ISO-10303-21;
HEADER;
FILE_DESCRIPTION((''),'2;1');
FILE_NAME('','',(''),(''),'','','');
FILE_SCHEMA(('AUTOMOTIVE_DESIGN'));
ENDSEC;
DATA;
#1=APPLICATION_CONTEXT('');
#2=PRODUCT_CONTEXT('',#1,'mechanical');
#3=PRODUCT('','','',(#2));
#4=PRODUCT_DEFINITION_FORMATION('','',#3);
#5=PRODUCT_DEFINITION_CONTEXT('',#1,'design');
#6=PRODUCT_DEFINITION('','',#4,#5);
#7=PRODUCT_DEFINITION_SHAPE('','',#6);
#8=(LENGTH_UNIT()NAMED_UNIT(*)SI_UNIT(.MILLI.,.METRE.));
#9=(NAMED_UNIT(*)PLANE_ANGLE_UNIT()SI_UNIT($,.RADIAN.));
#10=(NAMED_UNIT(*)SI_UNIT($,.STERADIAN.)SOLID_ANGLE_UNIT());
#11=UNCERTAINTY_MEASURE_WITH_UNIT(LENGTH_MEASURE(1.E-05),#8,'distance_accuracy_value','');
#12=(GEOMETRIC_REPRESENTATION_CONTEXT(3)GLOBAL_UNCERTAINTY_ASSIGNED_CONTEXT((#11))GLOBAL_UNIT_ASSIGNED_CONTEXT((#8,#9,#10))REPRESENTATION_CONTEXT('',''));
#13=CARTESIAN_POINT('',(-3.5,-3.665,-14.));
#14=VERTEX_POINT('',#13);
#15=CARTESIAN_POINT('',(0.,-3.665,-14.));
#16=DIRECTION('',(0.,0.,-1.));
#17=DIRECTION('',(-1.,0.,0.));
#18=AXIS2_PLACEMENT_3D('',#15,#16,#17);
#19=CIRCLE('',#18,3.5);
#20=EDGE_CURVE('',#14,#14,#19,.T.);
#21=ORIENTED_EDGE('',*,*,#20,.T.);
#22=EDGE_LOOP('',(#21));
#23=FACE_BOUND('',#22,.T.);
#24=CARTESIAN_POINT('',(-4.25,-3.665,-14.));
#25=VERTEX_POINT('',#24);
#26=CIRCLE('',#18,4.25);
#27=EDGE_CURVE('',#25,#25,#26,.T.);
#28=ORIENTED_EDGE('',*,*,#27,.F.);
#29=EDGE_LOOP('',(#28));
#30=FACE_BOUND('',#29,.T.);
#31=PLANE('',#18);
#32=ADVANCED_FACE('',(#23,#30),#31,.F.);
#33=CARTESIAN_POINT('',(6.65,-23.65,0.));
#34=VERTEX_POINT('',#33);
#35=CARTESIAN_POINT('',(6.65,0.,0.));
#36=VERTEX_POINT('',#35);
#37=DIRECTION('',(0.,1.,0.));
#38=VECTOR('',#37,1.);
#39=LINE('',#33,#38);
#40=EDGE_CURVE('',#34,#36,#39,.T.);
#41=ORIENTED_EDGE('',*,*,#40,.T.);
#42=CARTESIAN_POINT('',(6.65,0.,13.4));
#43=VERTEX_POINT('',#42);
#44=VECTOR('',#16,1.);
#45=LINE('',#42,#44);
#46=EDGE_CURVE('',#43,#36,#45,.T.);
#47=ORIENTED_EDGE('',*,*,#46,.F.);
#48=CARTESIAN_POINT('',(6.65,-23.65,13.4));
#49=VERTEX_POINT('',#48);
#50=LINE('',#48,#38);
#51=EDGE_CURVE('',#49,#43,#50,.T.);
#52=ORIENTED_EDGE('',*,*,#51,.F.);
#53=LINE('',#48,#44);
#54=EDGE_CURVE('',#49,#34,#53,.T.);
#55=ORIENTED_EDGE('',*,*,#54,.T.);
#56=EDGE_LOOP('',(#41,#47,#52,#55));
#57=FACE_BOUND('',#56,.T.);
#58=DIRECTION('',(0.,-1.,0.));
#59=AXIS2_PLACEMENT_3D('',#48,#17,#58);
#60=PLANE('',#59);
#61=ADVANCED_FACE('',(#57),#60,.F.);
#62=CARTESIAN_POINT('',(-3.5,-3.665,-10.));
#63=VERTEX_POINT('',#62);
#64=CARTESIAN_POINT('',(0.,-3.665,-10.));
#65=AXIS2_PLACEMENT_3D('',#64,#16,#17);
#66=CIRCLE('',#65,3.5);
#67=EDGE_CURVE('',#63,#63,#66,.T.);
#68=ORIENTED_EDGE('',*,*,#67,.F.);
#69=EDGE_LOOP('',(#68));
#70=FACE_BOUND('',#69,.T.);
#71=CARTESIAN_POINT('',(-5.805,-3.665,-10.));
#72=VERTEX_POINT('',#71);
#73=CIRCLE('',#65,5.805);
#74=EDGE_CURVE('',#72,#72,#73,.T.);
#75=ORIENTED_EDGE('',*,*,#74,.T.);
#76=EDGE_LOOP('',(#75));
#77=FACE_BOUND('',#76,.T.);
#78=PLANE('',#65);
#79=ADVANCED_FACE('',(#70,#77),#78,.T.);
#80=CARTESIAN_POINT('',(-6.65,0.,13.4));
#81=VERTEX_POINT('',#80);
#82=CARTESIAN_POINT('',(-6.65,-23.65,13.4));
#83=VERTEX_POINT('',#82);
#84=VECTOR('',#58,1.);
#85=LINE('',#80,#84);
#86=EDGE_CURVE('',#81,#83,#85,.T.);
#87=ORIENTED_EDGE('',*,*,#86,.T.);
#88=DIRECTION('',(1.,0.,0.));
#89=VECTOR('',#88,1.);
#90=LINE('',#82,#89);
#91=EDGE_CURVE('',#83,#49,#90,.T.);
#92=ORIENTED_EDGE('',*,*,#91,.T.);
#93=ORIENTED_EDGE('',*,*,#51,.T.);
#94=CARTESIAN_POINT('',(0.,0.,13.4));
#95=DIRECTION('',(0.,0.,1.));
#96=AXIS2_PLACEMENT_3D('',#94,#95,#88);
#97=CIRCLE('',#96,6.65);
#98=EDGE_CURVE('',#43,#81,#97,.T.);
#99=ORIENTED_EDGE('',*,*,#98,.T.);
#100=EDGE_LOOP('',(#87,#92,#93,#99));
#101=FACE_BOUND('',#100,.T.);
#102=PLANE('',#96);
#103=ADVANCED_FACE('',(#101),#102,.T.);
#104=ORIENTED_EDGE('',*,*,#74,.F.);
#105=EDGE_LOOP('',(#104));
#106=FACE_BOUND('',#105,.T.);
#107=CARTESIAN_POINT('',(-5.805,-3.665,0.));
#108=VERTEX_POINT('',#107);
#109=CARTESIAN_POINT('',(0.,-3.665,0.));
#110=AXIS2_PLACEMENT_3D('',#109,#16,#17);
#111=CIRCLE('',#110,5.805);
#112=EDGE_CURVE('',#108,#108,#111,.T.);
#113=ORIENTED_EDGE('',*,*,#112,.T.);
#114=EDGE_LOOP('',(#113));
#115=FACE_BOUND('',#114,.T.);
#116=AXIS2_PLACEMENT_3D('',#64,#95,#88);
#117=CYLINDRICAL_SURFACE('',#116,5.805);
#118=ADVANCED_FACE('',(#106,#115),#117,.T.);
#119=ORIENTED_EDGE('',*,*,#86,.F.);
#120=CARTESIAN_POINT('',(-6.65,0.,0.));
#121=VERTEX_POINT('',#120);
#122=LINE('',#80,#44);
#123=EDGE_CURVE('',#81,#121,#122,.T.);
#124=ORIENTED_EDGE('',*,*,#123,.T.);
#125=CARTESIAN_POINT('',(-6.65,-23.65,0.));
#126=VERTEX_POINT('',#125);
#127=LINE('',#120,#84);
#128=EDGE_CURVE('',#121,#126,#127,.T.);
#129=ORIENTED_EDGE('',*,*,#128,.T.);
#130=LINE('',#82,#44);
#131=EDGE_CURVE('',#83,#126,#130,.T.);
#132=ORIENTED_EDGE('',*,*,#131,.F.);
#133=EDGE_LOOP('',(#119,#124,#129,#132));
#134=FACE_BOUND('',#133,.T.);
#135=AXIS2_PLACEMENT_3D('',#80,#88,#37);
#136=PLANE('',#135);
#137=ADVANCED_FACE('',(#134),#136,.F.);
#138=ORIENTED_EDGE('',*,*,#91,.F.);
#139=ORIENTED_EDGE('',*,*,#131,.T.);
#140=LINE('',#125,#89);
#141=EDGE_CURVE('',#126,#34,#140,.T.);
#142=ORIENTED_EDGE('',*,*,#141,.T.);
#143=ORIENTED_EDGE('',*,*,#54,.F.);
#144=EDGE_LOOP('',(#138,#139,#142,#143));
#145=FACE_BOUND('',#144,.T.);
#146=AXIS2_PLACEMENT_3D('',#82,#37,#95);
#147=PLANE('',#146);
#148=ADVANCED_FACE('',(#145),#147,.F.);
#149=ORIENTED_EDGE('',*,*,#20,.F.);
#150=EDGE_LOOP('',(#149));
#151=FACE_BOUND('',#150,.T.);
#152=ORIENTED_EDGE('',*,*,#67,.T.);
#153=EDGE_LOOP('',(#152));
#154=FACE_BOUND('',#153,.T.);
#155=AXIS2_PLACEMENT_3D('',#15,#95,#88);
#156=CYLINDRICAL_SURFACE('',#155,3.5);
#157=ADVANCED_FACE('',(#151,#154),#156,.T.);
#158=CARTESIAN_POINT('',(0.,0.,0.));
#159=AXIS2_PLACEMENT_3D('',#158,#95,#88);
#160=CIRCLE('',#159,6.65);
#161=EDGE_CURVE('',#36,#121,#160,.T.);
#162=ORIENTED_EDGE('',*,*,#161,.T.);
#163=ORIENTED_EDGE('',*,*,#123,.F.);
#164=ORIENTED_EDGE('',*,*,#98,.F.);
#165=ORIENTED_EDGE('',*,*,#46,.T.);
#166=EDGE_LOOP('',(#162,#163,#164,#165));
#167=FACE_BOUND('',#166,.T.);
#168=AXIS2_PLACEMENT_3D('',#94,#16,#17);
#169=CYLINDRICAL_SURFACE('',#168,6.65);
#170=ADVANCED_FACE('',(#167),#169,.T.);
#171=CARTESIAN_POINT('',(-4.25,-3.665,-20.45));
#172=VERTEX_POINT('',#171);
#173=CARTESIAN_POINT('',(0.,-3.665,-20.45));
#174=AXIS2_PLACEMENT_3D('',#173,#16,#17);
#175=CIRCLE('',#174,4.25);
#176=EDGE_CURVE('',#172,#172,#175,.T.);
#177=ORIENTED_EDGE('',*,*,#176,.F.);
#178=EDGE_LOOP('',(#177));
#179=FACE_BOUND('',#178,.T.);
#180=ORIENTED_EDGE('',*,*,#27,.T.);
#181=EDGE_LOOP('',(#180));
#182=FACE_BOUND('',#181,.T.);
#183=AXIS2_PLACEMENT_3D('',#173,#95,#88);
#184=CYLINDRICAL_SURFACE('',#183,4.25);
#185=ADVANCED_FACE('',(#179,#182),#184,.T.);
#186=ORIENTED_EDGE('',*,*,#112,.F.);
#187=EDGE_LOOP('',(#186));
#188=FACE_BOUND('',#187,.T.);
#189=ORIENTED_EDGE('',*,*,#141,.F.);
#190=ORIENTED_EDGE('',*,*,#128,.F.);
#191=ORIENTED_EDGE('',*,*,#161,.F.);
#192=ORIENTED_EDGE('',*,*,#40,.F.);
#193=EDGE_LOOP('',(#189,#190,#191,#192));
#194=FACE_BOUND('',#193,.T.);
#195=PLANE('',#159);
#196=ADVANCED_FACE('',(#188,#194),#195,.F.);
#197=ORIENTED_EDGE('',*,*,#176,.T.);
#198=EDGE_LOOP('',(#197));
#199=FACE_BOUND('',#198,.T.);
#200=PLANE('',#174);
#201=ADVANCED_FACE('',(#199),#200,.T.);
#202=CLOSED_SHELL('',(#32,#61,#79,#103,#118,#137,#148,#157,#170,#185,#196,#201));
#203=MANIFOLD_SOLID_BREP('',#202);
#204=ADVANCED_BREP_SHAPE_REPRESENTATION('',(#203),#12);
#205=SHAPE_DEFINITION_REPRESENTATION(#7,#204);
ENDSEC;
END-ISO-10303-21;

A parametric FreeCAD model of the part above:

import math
import FreeCAD as App
import Part
import Sketcher
Q = App.Units.Quantity

doc = App.newDocument("Part")
body = doc.addObject("PartDesign::Body", "Body")

# Sketch on XY plane
sketch1 = body.newObject("Sketcher::SketchObject", "Sketch")
sketch1.AttachmentSupport = (doc.getObject("XY_Plane"), [""])
sketch1.MapMode = "FlatFace"
sketch1.addGeometry(Part.LineSegment(App.Vector(-6.65, 0, 0), App.Vector(-6.65, -23.65, 0)), False)
sketch1.addGeometry(Part.LineSegment(App.Vector(-6.65, -23.65, 0), App.Vector(6.65, -23.65, 0)), False)
sketch1.addGeometry(Part.LineSegment(App.Vector(6.65, -23.65, 0), App.Vector(6.65, 0, 0)), False)
sketch1.addGeometry(Part.ArcOfCircle(Part.Circle(App.Vector(0, 0, 0), App.Vector(0, 0, 1), 6.65), math.radians(0), math.radians(180)), False)
sketch1.addConstraint(Sketcher.Constraint("Coincident", 0, 2, 1, 1))
sketch1.addConstraint(Sketcher.Constraint("Coincident", 1, 2, 2, 1))
sketch1.addConstraint(Sketcher.Constraint("Tangent", 2, 2, 3, 1))
sketch1.addConstraint(Sketcher.Constraint("Tangent", 3, 2, 0, 1))
sketch1.addConstraint(Sketcher.Constraint("Vertical", 0))
sketch1.addConstraint(Sketcher.Constraint("Horizontal", 1))
sketch1.addConstraint(Sketcher.Constraint("Vertical", 2))
sketch1.addConstraint(Sketcher.Constraint("Coincident", 3, 3, -1, 1))
sketch1.addConstraint(Sketcher.Constraint("Radius", 3, Q("6.65 mm")))
sketch1.addConstraint(Sketcher.Constraint("DistanceY", 0, 2, 0, 1, Q("23.65 mm")))
pad1 = body.newObject("PartDesign::Pad", "Pad")
pad1.Profile = sketch1
pad1.Length = 13.4

# Sketch on XY plane
sketch2 = body.newObject("Sketcher::SketchObject", "Sketch001")
sketch2.AttachmentSupport = (doc.getObject("XY_Plane"), [""])
sketch2.MapMode = "FlatFace"
sketch2.addGeometry(Part.Circle(App.Vector(0, -3.665, 0), App.Vector(0, 0, 1), 5.805), False)
sketch2.addConstraint(Sketcher.Constraint("PointOnObject", 0, 3, -2))
sketch2.addConstraint(Sketcher.Constraint("Diameter", 0, Q("11.61 mm")))
sketch2.addConstraint(Sketcher.Constraint("DistanceY", 0, 3, -1, 1, Q("3.665 mm")))
pad2 = body.newObject("PartDesign::Pad", "Pad001")
pad2.Profile = sketch2
pad2.Length = 10
pad2.Reversed = True

# Sketch on XY plane
sketch3 = body.newObject("Sketcher::SketchObject", "Sketch002")
sketch3.AttachmentSupport = (doc.getObject("XY_Plane"), [""])
sketch3.MapMode = "FlatFace"
sketch3.AttachmentOffset = App.Placement(App.Vector(0, 0, -10), App.Rotation())
sketch3.addGeometry(Part.Circle(App.Vector(0, -3.665, 0), App.Vector(0, 0, 1), 3.5), False)
sketch3.addConstraint(Sketcher.Constraint("PointOnObject", 0, 3, -2))
sketch3.addConstraint(Sketcher.Constraint("Diameter", 0, Q("7 mm")))
sketch3.addConstraint(Sketcher.Constraint("DistanceY", 0, 3, -1, 1, Q("3.665 mm")))
pad3 = body.newObject("PartDesign::Pad", "Pad002")
pad3.Profile = sketch3
pad3.Length = 4
pad3.Reversed = True

# Sketch on XY plane
sketch4 = body.newObject("Sketcher::SketchObject", "Sketch003")
sketch4.AttachmentSupport = (doc.getObject("XY_Plane"), [""])
sketch4.MapMode = "FlatFace"
sketch4.AttachmentOffset = App.Placement(App.Vector(0, 0, -14), App.Rotation())
sketch4.addGeometry(Part.Circle(App.Vector(0, -3.665, 0), App.Vector(0, 0, 1), 4.25), False)
sketch4.addConstraint(Sketcher.Constraint("PointOnObject", 0, 3, -2))
sketch4.addConstraint(Sketcher.Constraint("Diameter", 0, Q("8.5 mm")))
sketch4.addConstraint(Sketcher.Constraint("DistanceY", 0, 3, -1, 1, Q("3.665 mm")))
pad4 = body.newObject("PartDesign::Pad", "Pad003")
pad4.Profile = sketch4
pad4.Length = 6.45
pad4.Reversed = True

doc.recompute()
